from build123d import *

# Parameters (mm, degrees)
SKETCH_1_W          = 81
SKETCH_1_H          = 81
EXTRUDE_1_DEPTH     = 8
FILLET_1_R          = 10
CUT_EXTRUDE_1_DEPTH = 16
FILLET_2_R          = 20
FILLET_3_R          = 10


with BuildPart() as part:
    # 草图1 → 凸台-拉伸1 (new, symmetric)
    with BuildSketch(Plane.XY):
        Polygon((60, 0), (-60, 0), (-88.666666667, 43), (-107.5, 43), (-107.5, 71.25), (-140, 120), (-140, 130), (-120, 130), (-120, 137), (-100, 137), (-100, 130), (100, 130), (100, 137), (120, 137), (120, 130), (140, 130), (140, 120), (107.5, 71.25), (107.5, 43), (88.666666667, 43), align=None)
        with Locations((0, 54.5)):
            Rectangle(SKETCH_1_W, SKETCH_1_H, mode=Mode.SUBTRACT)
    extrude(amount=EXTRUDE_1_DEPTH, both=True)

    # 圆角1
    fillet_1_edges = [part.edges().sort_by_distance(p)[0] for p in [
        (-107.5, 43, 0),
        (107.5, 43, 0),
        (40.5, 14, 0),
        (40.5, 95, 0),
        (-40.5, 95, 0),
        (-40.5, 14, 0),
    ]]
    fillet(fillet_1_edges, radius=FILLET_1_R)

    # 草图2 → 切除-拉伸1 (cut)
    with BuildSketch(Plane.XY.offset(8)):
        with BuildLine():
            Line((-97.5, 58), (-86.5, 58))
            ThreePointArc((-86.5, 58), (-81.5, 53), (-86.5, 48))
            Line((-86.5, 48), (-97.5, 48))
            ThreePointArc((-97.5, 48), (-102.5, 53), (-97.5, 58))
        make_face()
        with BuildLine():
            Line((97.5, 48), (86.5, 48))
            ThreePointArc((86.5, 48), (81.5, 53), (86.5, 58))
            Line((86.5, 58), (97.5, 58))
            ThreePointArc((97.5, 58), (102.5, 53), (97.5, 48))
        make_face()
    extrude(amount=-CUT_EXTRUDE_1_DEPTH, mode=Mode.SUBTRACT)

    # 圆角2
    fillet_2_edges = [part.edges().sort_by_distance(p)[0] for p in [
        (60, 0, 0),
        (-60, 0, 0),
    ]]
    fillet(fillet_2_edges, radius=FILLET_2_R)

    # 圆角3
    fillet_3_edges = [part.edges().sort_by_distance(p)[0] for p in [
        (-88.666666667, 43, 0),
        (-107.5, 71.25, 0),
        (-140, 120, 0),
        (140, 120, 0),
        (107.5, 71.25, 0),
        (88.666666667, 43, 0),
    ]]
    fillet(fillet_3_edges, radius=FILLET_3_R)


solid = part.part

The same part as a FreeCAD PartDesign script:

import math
import FreeCAD as App
import Part
import Sketcher
from FreeCAD import Vector


def edges_at(feature, points):
    """Names of the edges that pass closest to the given points."""
    edges = feature.Shape.Edges
    near = lambda p: min(range(len(edges)), key=lambda i: edges[i].distToShape(Part.Vertex(*p))[0])
    return sorted({f"Edge{near(p) + 1}" for p in points})


def add_polygon(sketch, points):
    """Adds a closed chain of lines whose ends are joined by coincident constraints."""
    first, n = sketch.GeometryCount, len(points)
    for a, b in zip(points, points[1:] + points[:1]):
        sketch.addGeometry(Part.LineSegment(App.Vector(*a, 0), App.Vector(*b, 0)), False)
    for i in range(n):
        sketch.addConstraint(Sketcher.Constraint("Coincident", first + i, 2, first + (i + 1) % n, 1))

doc = App.newDocument("Part")
body = doc.addObject("PartDesign::Body", "Body")

# Sketch on XY plane
sketch1 = body.newObject("Sketcher::SketchObject", "Sketch")
sketch1.AttachmentSupport = (doc.getObject("XY_Plane"), [""])
sketch1.MapMode = "FlatFace"
add_polygon(sketch1, [(-60, 0), (60, 0), (89, 43), (108, 43), (108, 71), (140, 120), (140, 130), (120, 130), (120, 137), (100, 137), (100, 130), (-100, 130), (-100, 137), (-120, 137), (-120, 130), (-140, 130), (-140, 120), (-108, 71), (-108, 43), (-89, 43)])  # lines 0-19
add_polygon(sketch1, [(-40, 14), (-40, 95), (40, 95), (40, 14)])  # lines 20-23
sketch1.addConstraint(Sketcher.Constraint("Horizontal", 0))
sketch1.addConstraint(Sketcher.Constraint("Horizontal", 2))
sketch1.addConstraint(Sketcher.Constraint("Vertical", 3))
sketch1.addConstraint(Sketcher.Constraint("Vertical", 5))
sketch1.addConstraint(Sketcher.Constraint("Horizontal", 6))
sketch1.addConstraint(Sketcher.Constraint("Vertical", 7))
sketch1.addConstraint(Sketcher.Constraint("Horizontal", 8))
sketch1.addConstraint(Sketcher.Constraint("Vertical", 9))
sketch1.addConstraint(Sketcher.Constraint("Horizontal", 10))
sketch1.addConstraint(Sketcher.Constraint("Vertical", 11))
sketch1.addConstraint(Sketcher.Constraint("Horizontal", 12))
sketch1.addConstraint(Sketcher.Constraint("Vertical", 13))
sketch1.addConstraint(Sketcher.Constraint("Horizontal", 14))
sketch1.addConstraint(Sketcher.Constraint("Vertical", 15))
sketch1.addConstraint(Sketcher.Constraint("Vertical", 17))
sketch1.addConstraint(Sketcher.Constraint("Horizontal", 18))
sketch1.addConstraint(Sketcher.Constraint("Vertical", 20))
sketch1.addConstraint(Sketcher.Constraint("Horizontal", 21))
sketch1.addConstraint(Sketcher.Constraint("Vertical", 22))
sketch1.addConstraint(Sketcher.Constraint("Horizontal", 23))
sketch1.addConstraint(Sketcher.Constraint("Symmetric", 0, 2, 19, 2, -1, 1))
sketch1.addConstraint(Sketcher.Constraint("Symmetric", 8, 2, 11, 2, -2))
sketch1.addConstraint(Sketcher.Constraint("Symmetric", 6, 2, 13, 2, -2))
sketch1.addConstraint(Sketcher.Constraint("Symmetric", 4, 2, 15, 2, -2))
sketch1.addConstraint(Sketcher.Constraint("Symmetric", 3, 2, 16, 2, -2))
sketch1.addConstraint(Sketcher.Constraint("Symmetric", 1, 2, 18, 2, -2))
sketch1.addConstraint(Sketcher.Constraint("Parallel", 1, 4))
sketch1.addConstraint(Sketcher.Constraint("Horizontal", 6, 2, 9, 2))
sketch1.addConstraint(Sketcher.Constraint("Equal", 6, 8))
sketch1.addConstraint(Sketcher.Constraint("Equal", 23, 20))
sketch1.addConstraint(Sketcher.Constraint("DistanceX", 0, 1, 0, 2, 120.0))
sketch1.addConstraint(Sketcher.Constraint("DistanceX", 6, 2, 6, 1, 20.0))
sketch1.addConstraint(Sketcher.Constraint("DistanceX", 10, 2, 10, 1, 200.0))
sketch1.addConstraint(Sketcher.Constraint("DistanceX", 21, 1, 21, 2, 81.0))
sketch1.addConstraint(Sketcher.Constraint("DistanceY", 5, 1, 5, 2, 10.0))
sketch1.addConstraint(Sketcher.Constraint("DistanceY", 7, 1, 7, 2, 7.0))
sketch1.addConstraint(Sketcher.Constraint("DistanceY", -1, 1, 1, 2, 43.0))
sketch1.addConstraint(Sketcher.Constraint("DistanceY", -1, 1, 4, 2, 120.0))
sketch1.addConstraint(Sketcher.Constraint("DistanceY", -1, 1, 20, 2, 95.0))
sketch1.addConstraint(Sketcher.Constraint("DistanceX", 16, 2, 20, 2, 67.0))
sketch1.addConstraint(Sketcher.Constraint("DistanceX", 21, 2, 3, 2, 67.0))
sketch1.addConstraint(Sketcher.Constraint("DistanceY", 3, 1, 3, 2, 28.25))
pad1 = body.newObject("PartDesign::Pad", "Pad")
pad1.Profile = sketch1
pad1.Length = 16
pad1.Midplane = True
doc.recompute()

fillet = body.newObject("PartDesign::Fillet", "Fillet")
fillet.Base = (pad1, edges_at(pad1, [
    (-107.5, 43, 0),
    (107.5, 43, 0),
    (40.5, 14, 0),
    (40.5, 95, 0),
    (-40.5, 95, 0),
    (-40.5, 14, 0),
]))
fillet.Radius = 10

# Sketch on XY plane
sketch2 = body.newObject("Sketcher::SketchObject", "Sketch001")
sketch2.AttachmentSupport = (doc.getObject("XY_Plane"), [""])
sketch2.MapMode = "FlatFace"
sketch2.AttachmentOffset = App.Placement(Vector(0, 0, 8), App.Rotation())
sketch2.addGeometry(Part.LineSegment(Vector(-86, 58, 0), Vector(-98, 58, 0)), False)
sketch2.addGeometry(Part.ArcOfCircle(Part.Circle(Vector(-98, 53, 0), Vector(0, 0, 1), 5), math.radians(90), math.radians(270)), False)
sketch2.addGeometry(Part.LineSegment(Vector(-98, 48, 0), Vector(-86, 48, 0)), False)
sketch2.addGeometry(Part.ArcOfCircle(Part.Circle(Vector(-86, 53, 0), Vector(0, 0, 1), 5), math.radians(-90), math.radians(90)), False)
sketch2.addGeometry(Part.LineSegment(Vector(86, 48, 0), Vector(98, 48, 0)), False)
sketch2.addGeometry(Part.ArcOfCircle(Part.Circle(Vector(98, 53, 0), Vector(0, 0, 1), 5), math.radians(-90), math.radians(90)), False)
sketch2.addGeometry(Part.LineSegment(Vector(98, 58, 0), Vector(86, 58, 0)), False)
sketch2.addGeometry(Part.ArcOfCircle(Part.Circle(Vector(86, 53, 0), Vector(0, 0, 1), 5), math.radians(90), math.radians(270)), False)
sketch2.addConstraint(Sketcher.Constraint("Tangent", 0, 2, 1, 1))
sketch2.addConstraint(Sketcher.Constraint("Tangent", 1, 2, 2, 1))
sketch2.addConstraint(Sketcher.Constraint("Tangent", 2, 2, 3, 1))
sketch2.addConstraint(Sketcher.Constraint("Tangent", 3, 2, 0, 1))
sketch2.addConstraint(Sketcher.Constraint("Tangent", 4, 2, 5, 1))
sketch2.addConstraint(Sketcher.Constraint("Tangent", 5, 2, 6, 1))
sketch2.addConstraint(Sketcher.Constraint("Tangent", 6, 2, 7, 1))
sketch2.addConstraint(Sketcher.Constraint("Tangent", 7, 2, 4, 1))
sketch2.addConstraint(Sketcher.Constraint("Horizontal", 0))
sketch2.addConstraint(Sketcher.Constraint("Horizontal", 2))
sketch2.addConstraint(Sketcher.Constraint("Horizontal", 4))
sketch2.addConstraint(Sketcher.Constraint("Horizontal", 6))
sketch2.addConstraint(Sketcher.Constraint("Equal", 3, 5))
sketch2.addConstraint(Sketcher.Constraint("Symmetric", 1, 3, 5, 3, -2))
sketch2.addConstraint(Sketcher.Constraint("Equal", 2, 4))
sketch2.addConstraint(Sketcher.Constraint("Radius", 1, 5.0))
sketch2.addConstraint(Sketcher.Constraint("DistanceX", 0, 2, 0, 1, 11.0))
sketch2.addConstraint(Sketcher.Constraint("DistanceY", -1, 1, 1, 3, 53.0))
sketch2.addConstraint(Sketcher.Constraint("DistanceX", 3, 3, 5, 3, 184.0))
pocket1 = body.newObject("PartDesign::Pocket", "Pocket")
pocket1.Profile = sketch2
pocket1.Length = 16
doc.recompute()

fillet2 = body.newObject("PartDesign::Fillet", "Fillet001")
fillet2.Base = (pocket1, edges_at(pocket1, [(60, 0, 0), (-60, 0, 0)]))
fillet2.Radius = 20
doc.recompute()

fillet3 = body.newObject("PartDesign::Fillet", "Fillet002")
fillet3.Base = (fillet2, edges_at(fillet2, [
    (-88.667, 43, 0),
    (-107.5, 71.25, 0),
    (-140, 120, 0),
    (140, 120, 0),
    (107.5, 71.25, 0),
    (88.667, 43, 0),
]))
fillet3.Radius = 10

doc.recompute()
